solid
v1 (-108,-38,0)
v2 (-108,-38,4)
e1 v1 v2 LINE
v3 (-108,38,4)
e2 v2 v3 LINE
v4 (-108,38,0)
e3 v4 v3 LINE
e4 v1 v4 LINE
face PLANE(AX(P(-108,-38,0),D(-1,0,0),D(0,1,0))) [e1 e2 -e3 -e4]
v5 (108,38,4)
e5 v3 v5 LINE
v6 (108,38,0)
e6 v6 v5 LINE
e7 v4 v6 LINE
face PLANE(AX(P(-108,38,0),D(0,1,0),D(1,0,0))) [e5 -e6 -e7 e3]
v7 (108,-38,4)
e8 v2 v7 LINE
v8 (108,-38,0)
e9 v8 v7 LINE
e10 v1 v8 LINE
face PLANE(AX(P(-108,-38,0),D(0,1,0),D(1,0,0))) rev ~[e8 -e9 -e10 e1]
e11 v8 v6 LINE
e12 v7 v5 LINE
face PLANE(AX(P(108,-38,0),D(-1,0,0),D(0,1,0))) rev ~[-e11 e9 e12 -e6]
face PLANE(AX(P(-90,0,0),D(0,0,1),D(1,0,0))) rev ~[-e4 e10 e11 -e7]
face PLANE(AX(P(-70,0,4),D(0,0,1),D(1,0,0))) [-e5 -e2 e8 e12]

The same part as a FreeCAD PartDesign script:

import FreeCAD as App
import Part
import Sketcher


def add_polygon(sketch, points):
    """Adds a closed chain of lines whose ends are joined by coincident constraints."""
    first, n = sketch.GeometryCount, len(points)
    for a, b in zip(points, points[1:] + points[:1]):
        sketch.addGeometry(Part.LineSegment(App.Vector(*a, 0), App.Vector(*b, 0)), False)
    for i in range(n):
        sketch.addConstraint(Sketcher.Constraint("Coincident", first + i, 2, first + (i + 1) % n, 1))

doc = App.newDocument("Part")
body = doc.addObject("PartDesign::Body", "Body")

sketch1 = body.newObject("Sketcher::SketchObject", "Sketch")
sketch1.AttachmentSupport = (doc.getObject("XY_Plane"), [""])
sketch1.MapMode = "FlatFace"
add_polygon(sketch1, [(-108, 38), (-108, -38), (108, -38), (108, 38)])
add_polygon(sketch1, [(100, -30), (-100, -30), (-100, 30), (100, 30)])
sketch1.addConstraint([
    Sketcher.Constraint("Vertical", 0),
    Sketcher.Constraint("Horizontal", 1),
    Sketcher.Constraint("Vertical", 2),
    Sketcher.Constraint("Horizontal", 3),
    Sketcher.Constraint("Horizontal", 4),
    Sketcher.Constraint("Vertical", 5),
    Sketcher.Constraint("Horizontal", 6),
    Sketcher.Constraint("Vertical", 7),
    Sketcher.Constraint("Symmetric", 0, 2, 2, 2, -1, 1),
    Sketcher.Constraint("Symmetric", 4, 2, 6, 2, -1, 1),
    Sketcher.Constraint("DistanceX", 1, 1, 1, 2, 216.0),
    Sketcher.Constraint("DistanceX", 4, 2, 4, 1, 200.0),
    Sketcher.Constraint("DistanceY", 0, 2, 0, 1, 76.0),
    Sketcher.Constraint("DistanceY", 5, 1, 5, 2, 60.0),
])
pad1 = body.newObject("PartDesign::Pad", "Pad")
pad1.Profile = sketch1
pad1.Length = 4

sketch2 = body.newObject("Sketcher::SketchObject", "Sketch001")
sketch2.AttachmentSupport = (doc.getObject("XY_Plane"), [""])
sketch2.MapMode = "FlatFace"
sketch2.AttachmentOffset = App.Placement(App.Vector(0, 0, 4), App.Rotation())
add_polygon(sketch2, [(-100, 30), (-100, -30), (-80, -30), (-80, 30)])
sketch2.addConstraint([
    Sketcher.Constraint("Vertical", 0),
    Sketcher.Constraint("Horizontal", 1),
    Sketcher.Constraint("Vertical", 2),
    Sketcher.Constraint("Horizontal", 3),
    Sketcher.Constraint("DistanceX", 1, 1, 1, 2, 20.0),
    Sketcher.Constraint("DistanceY", 0, 2, 0, 1, 60.0),
    Sketcher.Constraint("DistanceX", 0, 2, -1, 1, 100.0),
    Sketcher.Constraint("DistanceY", 0, 2, -1, 1, 30.0),
])
pad2 = body.newObject("PartDesign::Pad", "Pad001")
pad2.Profile = sketch2
pad2.Length = 4
pad2.Reversed = True
doc.recompute()

linearpattern = body.newObject("PartDesign::LinearPattern", "LinearPattern")
linearpattern.Originals = [pad2]
linearpattern.Direction = (doc.getObject("X_Axis"), [""])
linearpattern.Mode = "offset"
linearpattern.Offset = 20
linearpattern.Occurrences = 10
body.Tip = linearpattern

doc.recompute()
